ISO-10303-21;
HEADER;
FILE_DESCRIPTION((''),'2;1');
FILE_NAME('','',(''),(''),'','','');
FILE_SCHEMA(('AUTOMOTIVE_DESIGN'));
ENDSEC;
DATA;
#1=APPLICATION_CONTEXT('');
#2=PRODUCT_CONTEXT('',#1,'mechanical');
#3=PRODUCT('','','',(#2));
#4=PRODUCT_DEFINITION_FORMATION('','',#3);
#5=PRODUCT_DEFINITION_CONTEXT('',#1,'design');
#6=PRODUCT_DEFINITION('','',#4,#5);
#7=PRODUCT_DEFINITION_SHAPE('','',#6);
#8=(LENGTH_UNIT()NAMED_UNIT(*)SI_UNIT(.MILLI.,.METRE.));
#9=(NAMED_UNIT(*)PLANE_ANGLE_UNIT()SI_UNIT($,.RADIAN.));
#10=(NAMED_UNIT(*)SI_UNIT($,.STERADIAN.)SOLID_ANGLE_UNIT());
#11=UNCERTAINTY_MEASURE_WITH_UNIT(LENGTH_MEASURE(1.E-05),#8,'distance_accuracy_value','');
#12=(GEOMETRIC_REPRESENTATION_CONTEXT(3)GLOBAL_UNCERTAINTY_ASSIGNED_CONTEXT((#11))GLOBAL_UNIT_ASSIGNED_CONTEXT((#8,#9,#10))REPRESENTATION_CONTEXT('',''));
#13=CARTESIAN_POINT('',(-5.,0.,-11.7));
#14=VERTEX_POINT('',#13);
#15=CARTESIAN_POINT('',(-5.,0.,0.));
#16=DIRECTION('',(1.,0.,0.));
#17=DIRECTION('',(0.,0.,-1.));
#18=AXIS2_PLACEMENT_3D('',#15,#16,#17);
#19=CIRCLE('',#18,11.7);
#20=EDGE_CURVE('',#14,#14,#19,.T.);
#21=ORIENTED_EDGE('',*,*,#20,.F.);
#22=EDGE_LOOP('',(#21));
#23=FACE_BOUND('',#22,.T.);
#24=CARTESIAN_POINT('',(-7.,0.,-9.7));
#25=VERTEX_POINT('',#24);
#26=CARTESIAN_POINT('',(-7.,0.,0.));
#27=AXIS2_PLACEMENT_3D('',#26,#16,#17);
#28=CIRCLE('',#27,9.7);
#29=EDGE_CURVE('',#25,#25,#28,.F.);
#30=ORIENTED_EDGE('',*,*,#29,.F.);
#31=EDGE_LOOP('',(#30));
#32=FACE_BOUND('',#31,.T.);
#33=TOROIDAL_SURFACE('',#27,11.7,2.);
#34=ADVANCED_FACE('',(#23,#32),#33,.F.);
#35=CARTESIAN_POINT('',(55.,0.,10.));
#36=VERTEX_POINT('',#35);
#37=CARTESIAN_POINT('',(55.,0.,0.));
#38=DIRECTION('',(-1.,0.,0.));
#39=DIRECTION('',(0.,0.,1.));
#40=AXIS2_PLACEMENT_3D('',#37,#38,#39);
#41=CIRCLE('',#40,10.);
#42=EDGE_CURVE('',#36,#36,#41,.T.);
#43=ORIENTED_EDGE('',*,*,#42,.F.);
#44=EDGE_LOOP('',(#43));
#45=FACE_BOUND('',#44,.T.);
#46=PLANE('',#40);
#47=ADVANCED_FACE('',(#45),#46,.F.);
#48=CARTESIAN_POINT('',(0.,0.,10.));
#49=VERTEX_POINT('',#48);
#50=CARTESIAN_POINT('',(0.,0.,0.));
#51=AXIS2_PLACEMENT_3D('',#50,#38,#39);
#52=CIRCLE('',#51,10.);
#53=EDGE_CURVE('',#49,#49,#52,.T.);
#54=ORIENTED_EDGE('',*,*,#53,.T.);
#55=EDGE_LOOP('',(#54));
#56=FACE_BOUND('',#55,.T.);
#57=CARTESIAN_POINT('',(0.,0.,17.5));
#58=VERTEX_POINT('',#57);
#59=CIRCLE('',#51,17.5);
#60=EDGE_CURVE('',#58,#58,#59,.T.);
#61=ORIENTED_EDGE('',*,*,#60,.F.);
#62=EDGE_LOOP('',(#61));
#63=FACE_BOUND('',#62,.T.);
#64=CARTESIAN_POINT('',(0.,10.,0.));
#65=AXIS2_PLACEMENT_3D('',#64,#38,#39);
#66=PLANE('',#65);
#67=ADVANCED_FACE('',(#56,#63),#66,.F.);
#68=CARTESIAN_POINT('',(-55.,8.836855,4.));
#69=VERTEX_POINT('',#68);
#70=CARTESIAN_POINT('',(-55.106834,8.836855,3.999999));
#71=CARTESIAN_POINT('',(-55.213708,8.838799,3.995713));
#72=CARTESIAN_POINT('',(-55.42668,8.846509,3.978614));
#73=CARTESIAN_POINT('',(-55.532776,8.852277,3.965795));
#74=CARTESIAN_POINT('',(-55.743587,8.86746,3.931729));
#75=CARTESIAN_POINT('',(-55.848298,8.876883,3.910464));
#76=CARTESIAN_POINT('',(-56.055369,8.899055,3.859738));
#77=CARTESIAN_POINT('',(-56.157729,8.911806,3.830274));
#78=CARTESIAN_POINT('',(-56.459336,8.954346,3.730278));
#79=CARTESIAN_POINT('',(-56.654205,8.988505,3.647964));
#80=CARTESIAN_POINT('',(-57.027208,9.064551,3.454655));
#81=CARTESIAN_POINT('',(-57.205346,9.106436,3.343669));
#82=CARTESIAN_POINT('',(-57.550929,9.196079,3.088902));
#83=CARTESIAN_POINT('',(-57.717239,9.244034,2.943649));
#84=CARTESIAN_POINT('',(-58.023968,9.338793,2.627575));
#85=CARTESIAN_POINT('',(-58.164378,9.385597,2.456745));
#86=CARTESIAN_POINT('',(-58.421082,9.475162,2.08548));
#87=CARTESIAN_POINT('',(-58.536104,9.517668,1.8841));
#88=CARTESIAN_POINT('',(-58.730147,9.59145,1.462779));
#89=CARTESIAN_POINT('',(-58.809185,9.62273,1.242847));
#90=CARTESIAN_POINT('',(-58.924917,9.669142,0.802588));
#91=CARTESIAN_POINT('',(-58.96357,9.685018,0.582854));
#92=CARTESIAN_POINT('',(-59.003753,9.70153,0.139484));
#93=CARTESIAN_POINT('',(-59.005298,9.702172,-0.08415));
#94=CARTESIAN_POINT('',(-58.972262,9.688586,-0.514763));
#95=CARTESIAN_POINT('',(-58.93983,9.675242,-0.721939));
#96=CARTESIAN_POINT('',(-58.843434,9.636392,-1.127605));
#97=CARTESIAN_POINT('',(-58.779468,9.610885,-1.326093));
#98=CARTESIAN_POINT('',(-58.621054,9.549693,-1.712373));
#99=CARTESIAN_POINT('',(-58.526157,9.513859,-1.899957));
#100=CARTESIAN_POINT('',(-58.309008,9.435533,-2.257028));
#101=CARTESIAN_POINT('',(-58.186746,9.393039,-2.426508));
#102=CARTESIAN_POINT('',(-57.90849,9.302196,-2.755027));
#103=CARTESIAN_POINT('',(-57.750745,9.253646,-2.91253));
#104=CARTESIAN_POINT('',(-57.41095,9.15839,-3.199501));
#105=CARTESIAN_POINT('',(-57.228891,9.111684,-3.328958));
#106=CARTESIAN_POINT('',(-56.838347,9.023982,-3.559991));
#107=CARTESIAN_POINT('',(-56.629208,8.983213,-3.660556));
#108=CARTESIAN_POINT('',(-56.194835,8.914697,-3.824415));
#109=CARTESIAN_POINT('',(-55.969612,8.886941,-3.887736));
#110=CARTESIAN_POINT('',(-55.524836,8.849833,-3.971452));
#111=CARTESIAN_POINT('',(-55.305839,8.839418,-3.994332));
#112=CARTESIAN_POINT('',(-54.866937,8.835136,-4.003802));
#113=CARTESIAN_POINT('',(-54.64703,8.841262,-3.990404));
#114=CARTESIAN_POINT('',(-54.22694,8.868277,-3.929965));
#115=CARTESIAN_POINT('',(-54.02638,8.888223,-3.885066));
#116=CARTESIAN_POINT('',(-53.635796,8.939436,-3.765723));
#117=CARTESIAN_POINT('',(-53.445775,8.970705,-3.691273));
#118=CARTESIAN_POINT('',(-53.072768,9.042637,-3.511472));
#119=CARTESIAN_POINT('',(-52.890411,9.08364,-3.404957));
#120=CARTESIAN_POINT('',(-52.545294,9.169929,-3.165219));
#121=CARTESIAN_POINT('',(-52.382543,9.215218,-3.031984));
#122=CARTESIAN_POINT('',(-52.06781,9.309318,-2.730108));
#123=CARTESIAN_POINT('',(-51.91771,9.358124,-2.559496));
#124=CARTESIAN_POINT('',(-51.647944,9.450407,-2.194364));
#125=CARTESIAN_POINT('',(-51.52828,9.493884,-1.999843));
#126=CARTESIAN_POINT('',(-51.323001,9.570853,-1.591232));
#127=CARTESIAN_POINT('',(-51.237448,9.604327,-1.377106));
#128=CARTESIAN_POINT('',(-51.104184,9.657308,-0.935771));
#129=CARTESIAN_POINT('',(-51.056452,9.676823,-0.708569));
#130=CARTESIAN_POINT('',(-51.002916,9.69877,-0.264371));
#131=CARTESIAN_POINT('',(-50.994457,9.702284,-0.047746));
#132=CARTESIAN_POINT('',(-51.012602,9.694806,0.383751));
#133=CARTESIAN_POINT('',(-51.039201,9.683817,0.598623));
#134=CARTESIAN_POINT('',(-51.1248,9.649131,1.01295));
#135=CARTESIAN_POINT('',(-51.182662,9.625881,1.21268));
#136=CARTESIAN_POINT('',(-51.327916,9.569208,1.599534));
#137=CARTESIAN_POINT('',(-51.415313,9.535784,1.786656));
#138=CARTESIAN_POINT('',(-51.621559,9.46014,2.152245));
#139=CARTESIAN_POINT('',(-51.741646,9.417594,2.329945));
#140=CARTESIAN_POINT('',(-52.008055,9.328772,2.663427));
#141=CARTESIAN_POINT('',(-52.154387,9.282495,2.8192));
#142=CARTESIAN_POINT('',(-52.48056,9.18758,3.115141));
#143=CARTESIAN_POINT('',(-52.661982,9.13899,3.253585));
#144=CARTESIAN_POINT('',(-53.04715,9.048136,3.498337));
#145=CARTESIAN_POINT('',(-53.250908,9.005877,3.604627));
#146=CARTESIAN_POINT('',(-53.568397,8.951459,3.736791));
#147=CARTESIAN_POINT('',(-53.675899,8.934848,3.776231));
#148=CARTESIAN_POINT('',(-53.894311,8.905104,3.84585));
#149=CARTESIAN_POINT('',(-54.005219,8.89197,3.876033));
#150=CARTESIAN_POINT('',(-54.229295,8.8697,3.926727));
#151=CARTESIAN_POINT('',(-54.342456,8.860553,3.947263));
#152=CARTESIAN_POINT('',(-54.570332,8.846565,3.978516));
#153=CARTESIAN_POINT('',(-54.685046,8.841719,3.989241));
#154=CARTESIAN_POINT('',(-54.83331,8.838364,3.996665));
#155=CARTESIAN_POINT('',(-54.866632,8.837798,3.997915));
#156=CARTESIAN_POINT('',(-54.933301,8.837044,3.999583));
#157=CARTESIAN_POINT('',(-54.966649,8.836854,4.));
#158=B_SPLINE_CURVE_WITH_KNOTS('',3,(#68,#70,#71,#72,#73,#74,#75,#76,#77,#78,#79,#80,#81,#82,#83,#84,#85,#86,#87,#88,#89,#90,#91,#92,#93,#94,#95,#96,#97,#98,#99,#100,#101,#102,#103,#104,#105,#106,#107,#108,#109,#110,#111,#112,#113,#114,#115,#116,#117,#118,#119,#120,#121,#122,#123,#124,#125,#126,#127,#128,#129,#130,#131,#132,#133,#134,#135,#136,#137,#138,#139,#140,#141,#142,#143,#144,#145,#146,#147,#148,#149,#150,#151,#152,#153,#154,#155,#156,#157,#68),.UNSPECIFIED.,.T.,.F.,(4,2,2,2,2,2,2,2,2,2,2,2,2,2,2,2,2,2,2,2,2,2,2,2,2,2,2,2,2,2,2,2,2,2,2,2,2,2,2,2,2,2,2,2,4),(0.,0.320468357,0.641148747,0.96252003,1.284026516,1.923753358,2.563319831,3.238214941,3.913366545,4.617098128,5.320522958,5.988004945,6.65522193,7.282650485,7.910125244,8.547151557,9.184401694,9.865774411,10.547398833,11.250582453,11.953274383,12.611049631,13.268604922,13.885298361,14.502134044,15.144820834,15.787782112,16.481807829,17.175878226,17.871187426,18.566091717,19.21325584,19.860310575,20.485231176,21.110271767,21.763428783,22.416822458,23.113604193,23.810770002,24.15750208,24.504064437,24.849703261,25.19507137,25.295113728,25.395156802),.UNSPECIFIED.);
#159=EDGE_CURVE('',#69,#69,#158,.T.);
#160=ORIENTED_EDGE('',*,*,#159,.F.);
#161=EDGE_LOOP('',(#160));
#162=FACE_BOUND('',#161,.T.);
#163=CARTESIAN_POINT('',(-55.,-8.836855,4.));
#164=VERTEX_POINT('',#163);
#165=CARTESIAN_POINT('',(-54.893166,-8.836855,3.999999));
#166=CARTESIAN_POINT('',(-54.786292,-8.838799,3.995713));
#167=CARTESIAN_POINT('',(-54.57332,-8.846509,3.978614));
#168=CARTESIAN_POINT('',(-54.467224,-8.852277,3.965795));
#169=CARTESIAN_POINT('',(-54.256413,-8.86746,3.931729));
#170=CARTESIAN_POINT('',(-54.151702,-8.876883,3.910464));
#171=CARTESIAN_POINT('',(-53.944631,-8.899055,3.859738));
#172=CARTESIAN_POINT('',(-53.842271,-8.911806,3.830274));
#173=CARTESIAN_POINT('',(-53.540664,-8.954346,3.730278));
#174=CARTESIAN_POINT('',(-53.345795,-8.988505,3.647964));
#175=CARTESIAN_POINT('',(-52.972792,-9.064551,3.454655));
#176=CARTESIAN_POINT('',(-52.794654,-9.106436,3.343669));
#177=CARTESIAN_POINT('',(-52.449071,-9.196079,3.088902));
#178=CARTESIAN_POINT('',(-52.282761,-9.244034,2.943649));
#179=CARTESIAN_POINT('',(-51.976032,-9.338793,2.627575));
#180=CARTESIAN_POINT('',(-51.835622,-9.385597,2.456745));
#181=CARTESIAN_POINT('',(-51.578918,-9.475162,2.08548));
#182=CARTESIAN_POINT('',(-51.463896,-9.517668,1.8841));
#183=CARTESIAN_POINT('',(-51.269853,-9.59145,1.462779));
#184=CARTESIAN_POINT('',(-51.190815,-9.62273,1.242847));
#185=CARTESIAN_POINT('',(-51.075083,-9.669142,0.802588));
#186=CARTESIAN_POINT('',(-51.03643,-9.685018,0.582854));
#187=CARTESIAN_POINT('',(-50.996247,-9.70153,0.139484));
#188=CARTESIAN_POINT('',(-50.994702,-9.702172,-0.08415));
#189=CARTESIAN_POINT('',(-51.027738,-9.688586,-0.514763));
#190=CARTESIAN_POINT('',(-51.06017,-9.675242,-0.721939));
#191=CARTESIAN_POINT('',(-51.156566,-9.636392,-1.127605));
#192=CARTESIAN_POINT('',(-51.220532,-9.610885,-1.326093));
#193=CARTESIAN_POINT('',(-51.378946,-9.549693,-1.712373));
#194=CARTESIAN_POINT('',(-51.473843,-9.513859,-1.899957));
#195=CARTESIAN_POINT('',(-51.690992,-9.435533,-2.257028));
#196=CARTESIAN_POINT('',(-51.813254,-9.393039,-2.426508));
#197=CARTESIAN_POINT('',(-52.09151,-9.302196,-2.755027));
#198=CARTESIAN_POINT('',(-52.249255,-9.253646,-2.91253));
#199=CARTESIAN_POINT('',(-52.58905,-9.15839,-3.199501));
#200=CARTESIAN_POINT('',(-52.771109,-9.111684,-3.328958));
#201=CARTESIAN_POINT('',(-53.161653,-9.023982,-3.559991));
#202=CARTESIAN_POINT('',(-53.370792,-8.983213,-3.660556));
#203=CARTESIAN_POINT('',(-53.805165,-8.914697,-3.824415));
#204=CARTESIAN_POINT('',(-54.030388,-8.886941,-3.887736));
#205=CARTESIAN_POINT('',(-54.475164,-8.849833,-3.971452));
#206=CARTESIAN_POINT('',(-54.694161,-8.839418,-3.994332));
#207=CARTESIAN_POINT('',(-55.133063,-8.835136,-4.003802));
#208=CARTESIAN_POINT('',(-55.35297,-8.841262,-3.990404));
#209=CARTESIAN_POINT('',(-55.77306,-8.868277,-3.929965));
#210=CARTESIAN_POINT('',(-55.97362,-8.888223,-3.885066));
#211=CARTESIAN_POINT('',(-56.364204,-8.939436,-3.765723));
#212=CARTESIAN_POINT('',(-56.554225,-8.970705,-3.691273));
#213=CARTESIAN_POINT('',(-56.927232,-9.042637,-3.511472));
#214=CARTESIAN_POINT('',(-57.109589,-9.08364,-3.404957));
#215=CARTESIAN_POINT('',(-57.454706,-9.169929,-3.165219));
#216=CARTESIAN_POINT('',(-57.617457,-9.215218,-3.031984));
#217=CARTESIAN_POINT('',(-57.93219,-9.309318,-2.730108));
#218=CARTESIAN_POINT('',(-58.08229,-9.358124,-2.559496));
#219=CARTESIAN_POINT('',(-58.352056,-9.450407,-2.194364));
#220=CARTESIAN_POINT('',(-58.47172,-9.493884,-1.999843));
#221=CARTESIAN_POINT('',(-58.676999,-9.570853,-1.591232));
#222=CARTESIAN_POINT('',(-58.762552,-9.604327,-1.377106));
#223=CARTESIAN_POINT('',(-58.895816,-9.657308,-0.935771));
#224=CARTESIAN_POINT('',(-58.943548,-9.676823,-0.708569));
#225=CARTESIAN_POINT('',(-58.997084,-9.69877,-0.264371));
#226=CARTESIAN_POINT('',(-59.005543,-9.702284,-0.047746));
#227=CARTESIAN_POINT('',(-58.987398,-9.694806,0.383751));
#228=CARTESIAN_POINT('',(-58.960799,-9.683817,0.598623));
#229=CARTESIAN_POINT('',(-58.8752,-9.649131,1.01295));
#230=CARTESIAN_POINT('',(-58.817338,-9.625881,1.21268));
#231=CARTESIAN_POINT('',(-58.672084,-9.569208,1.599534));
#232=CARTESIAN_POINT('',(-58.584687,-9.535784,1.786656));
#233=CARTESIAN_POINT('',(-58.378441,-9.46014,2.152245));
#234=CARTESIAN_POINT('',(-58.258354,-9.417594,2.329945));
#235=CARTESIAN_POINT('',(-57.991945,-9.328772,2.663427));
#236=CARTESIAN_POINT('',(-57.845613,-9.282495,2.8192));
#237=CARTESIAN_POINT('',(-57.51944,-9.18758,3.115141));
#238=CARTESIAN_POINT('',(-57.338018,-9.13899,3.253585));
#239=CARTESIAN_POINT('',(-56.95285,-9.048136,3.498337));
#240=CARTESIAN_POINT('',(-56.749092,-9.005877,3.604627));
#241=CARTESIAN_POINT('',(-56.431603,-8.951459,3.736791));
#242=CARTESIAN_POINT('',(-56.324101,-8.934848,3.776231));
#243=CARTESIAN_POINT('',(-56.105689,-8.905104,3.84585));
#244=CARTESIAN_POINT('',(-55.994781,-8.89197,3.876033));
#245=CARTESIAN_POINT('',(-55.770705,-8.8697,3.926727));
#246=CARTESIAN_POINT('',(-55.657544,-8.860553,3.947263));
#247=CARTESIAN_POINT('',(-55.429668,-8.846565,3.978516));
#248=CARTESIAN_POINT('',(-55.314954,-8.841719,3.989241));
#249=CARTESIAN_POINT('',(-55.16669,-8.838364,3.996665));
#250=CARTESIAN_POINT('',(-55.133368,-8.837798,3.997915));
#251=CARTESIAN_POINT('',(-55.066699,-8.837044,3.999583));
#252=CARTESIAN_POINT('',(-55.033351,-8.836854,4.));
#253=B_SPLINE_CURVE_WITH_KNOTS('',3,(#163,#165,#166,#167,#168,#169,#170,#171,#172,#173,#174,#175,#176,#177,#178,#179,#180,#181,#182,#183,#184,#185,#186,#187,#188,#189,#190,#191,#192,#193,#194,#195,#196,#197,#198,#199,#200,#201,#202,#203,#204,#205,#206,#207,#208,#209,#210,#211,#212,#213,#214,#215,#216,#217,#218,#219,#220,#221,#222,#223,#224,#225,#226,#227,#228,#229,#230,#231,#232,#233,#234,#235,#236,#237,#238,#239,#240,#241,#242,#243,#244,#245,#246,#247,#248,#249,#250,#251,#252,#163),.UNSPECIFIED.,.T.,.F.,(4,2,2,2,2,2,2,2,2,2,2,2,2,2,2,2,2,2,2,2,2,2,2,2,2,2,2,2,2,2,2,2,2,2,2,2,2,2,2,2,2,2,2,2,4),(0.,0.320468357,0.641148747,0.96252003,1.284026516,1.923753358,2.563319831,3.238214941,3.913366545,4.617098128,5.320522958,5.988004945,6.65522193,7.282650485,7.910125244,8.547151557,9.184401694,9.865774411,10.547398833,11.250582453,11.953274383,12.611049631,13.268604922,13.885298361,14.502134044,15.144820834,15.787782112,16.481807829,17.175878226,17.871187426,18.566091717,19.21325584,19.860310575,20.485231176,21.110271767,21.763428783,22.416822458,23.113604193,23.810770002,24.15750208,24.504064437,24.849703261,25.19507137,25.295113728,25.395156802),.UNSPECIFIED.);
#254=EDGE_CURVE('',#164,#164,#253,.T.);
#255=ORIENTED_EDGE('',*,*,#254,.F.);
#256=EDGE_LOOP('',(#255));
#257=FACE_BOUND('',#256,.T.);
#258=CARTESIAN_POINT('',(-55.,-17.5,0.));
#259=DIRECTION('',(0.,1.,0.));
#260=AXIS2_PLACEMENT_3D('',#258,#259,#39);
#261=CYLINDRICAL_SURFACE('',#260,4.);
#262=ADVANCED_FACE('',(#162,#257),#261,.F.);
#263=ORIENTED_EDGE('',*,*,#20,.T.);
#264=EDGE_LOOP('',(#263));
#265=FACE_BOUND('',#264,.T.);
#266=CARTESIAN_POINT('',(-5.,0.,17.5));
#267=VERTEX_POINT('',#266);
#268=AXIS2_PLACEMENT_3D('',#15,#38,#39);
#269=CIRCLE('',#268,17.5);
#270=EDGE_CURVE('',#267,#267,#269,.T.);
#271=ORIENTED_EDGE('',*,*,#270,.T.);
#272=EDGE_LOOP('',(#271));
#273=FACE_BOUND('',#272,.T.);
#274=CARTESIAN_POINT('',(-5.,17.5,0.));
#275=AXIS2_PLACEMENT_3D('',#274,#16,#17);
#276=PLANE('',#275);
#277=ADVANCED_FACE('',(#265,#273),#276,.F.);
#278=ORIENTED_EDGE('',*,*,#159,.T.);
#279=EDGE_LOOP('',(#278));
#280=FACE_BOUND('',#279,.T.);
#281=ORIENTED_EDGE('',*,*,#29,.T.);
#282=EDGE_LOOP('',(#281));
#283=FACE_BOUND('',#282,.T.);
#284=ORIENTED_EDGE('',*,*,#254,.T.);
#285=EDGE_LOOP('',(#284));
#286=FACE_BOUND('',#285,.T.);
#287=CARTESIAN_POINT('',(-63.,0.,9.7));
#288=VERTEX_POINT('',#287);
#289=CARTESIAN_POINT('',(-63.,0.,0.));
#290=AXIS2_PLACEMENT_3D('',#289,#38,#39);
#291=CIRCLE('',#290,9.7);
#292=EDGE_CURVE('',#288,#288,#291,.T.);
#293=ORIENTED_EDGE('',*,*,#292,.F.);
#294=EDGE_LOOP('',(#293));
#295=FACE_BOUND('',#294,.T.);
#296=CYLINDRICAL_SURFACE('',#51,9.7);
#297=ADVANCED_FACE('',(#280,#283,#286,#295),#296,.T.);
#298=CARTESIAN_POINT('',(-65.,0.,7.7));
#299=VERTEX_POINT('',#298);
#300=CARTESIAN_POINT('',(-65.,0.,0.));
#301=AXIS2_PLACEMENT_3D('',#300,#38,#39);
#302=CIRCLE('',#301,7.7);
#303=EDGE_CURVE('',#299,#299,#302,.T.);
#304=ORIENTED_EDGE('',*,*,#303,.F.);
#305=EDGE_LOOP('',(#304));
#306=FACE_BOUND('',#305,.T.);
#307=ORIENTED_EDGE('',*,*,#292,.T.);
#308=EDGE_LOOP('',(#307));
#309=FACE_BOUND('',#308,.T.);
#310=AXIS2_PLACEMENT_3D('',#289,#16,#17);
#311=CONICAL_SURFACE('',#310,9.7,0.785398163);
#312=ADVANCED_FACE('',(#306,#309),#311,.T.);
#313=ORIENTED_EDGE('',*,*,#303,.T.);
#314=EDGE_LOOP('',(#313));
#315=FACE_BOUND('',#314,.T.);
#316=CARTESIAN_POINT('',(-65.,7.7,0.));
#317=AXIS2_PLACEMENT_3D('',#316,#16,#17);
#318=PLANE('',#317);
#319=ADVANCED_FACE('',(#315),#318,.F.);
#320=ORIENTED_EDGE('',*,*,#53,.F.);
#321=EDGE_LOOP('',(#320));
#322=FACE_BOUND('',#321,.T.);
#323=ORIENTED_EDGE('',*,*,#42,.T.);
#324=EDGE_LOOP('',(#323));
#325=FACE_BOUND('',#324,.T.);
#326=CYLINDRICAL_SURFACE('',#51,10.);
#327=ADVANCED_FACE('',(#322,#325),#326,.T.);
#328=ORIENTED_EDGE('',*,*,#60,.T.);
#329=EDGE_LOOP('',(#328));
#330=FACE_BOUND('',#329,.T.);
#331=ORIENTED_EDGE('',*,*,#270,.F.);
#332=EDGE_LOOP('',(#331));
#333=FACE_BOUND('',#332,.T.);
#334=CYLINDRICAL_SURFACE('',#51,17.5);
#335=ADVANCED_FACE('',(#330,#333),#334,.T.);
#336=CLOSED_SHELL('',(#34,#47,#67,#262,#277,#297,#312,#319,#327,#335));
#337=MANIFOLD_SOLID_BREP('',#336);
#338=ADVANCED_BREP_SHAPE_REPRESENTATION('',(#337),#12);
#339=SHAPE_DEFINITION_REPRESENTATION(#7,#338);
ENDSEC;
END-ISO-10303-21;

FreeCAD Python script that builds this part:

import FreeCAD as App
import Part
import Sketcher
from FreeCAD import Vector
Q = App.Units.Quantity


def edges_at(feature, points):
    """Names of the edges that pass closest to the given points."""
    edges = feature.Shape.Edges
    near = lambda p: min(range(len(edges)), key=lambda i: edges[i].distToShape(Part.Vertex(*p))[0])
    return sorted({f"Edge{near(p) + 1}" for p in points})

doc = App.newDocument("Part")
body = doc.addObject("PartDesign::Body", "Body")

# Sketch on XY plane
sketch1 = body.newObject("Sketcher::SketchObject", "Sketch")
sketch1.AttachmentSupport = (doc.getObject("XY_Plane"), [""])
sketch1.MapMode = "FlatFace"
sketch1.addGeometry([
    Part.LineSegment(Vector(55, 0, 0), Vector(55, 10, 0)),  # 0
    Part.LineSegment(Vector(55, 10, 0), Vector(0, 10, 0)),  # 1
    Part.LineSegment(Vector(0, 10, 0), Vector(0, 17.5, 0)),  # 2
    Part.LineSegment(Vector(0, 17.5, 0), Vector(-5, 17.5, 0)),  # 3
    Part.LineSegment(Vector(-5, 17.5, 0), Vector(-5, 9.7, 0)),  # 4
    Part.LineSegment(Vector(-5, 9.7, 0), Vector(-63, 9.7, 0)),  # 5
    Part.LineSegment(Vector(-63, 9.7, 0), Vector(-65, 7.7, 0)),  # 6
    Part.LineSegment(Vector(-65, 7.7, 0), Vector(-65, 0, 0)),  # 7
    Part.LineSegment(Vector(-65, 0, 0), Vector(55, 0, 0)),  # 8
], False)
sketch1.addConstraint([
    Sketcher.Constraint("Coincident", 0, 2, 1, 1),
    Sketcher.Constraint("Coincident", 1, 2, 2, 1),
    Sketcher.Constraint("Coincident", 2, 2, 3, 1),
    Sketcher.Constraint("Coincident", 3, 2, 4, 1),
    Sketcher.Constraint("Coincident", 4, 2, 5, 1),
    Sketcher.Constraint("Coincident", 5, 2, 6, 1),
    Sketcher.Constraint("Coincident", 6, 2, 7, 1),
    Sketcher.Constraint("Coincident", 7, 2, 8, 1),
    Sketcher.Constraint("Coincident", 8, 2, 0, 1),
    Sketcher.Constraint("Vertical", 0),
    Sketcher.Constraint("Horizontal", 1),
    Sketcher.Constraint("Vertical", 2),
    Sketcher.Constraint("Horizontal", 3),
    Sketcher.Constraint("Vertical", 4),
    Sketcher.Constraint("Horizontal", 5),
    Sketcher.Constraint("Vertical", 7),
    Sketcher.Constraint("Horizontal", 8),
    Sketcher.Constraint("PointOnObject", 1, 2, -2),
    Sketcher.Constraint("PointOnObject", 7, 2, -1),
    Sketcher.Constraint("DistanceX", 1, 2, 1, 1, 55.0),
    Sketcher.Constraint("DistanceX", 3, 2, 3, 1, 5.0),
    Sketcher.Constraint("DistanceX", 5, 2, 5, 1, 58.0),
    Sketcher.Constraint("DistanceX", 8, 1, 8, 2, 120.0),
    Sketcher.Constraint("DistanceY", 0, 1, 0, 2, 10.0),
    Sketcher.Constraint("Angle", 6, Q("-135 deg")),
    Sketcher.Constraint("DistanceY", 2, 1, 2, 2, 7.5),
    Sketcher.Constraint("DistanceY", 4, 2, 4, 1, 7.8),
])
revolution = body.newObject("PartDesign::Revolution", "Revolution")
revolution.Profile = sketch1
revolution.ReferenceAxis = (sketch1, ["H_Axis"])
revolution.Angle = 360
doc.recompute()

fillet = body.newObject("PartDesign::Fillet", "Fillet")
fillet.Base = (revolution, edges_at(revolution, [(-5, 0, -9.7)]))
fillet.Radius = 2

# Sketch on XZ plane
sketch2 = body.newObject("Sketcher::SketchObject", "Sketch001")
sketch2.AttachmentSupport = (doc.getObject("XZ_Plane"), [""])
sketch2.MapMode = "FlatFace"
sketch2.addGeometry(Part.Circle(Vector(-55, 0, 0), Vector(0, 0, 1), 4), False)
sketch2.addConstraint([
    Sketcher.Constraint("PointOnObject", 0, 3, -1),
    Sketcher.Constraint("Diameter", 0, 8.0),
    Sketcher.Constraint("DistanceX", 0, 3, -1, 1, 55.0),
])
pocket1 = body.newObject("PartDesign::Pocket", "Pocket")
pocket1.Profile = sketch2
pocket1.Type = "ThroughAll"
pocket1.Midplane = True

doc.recompute()
